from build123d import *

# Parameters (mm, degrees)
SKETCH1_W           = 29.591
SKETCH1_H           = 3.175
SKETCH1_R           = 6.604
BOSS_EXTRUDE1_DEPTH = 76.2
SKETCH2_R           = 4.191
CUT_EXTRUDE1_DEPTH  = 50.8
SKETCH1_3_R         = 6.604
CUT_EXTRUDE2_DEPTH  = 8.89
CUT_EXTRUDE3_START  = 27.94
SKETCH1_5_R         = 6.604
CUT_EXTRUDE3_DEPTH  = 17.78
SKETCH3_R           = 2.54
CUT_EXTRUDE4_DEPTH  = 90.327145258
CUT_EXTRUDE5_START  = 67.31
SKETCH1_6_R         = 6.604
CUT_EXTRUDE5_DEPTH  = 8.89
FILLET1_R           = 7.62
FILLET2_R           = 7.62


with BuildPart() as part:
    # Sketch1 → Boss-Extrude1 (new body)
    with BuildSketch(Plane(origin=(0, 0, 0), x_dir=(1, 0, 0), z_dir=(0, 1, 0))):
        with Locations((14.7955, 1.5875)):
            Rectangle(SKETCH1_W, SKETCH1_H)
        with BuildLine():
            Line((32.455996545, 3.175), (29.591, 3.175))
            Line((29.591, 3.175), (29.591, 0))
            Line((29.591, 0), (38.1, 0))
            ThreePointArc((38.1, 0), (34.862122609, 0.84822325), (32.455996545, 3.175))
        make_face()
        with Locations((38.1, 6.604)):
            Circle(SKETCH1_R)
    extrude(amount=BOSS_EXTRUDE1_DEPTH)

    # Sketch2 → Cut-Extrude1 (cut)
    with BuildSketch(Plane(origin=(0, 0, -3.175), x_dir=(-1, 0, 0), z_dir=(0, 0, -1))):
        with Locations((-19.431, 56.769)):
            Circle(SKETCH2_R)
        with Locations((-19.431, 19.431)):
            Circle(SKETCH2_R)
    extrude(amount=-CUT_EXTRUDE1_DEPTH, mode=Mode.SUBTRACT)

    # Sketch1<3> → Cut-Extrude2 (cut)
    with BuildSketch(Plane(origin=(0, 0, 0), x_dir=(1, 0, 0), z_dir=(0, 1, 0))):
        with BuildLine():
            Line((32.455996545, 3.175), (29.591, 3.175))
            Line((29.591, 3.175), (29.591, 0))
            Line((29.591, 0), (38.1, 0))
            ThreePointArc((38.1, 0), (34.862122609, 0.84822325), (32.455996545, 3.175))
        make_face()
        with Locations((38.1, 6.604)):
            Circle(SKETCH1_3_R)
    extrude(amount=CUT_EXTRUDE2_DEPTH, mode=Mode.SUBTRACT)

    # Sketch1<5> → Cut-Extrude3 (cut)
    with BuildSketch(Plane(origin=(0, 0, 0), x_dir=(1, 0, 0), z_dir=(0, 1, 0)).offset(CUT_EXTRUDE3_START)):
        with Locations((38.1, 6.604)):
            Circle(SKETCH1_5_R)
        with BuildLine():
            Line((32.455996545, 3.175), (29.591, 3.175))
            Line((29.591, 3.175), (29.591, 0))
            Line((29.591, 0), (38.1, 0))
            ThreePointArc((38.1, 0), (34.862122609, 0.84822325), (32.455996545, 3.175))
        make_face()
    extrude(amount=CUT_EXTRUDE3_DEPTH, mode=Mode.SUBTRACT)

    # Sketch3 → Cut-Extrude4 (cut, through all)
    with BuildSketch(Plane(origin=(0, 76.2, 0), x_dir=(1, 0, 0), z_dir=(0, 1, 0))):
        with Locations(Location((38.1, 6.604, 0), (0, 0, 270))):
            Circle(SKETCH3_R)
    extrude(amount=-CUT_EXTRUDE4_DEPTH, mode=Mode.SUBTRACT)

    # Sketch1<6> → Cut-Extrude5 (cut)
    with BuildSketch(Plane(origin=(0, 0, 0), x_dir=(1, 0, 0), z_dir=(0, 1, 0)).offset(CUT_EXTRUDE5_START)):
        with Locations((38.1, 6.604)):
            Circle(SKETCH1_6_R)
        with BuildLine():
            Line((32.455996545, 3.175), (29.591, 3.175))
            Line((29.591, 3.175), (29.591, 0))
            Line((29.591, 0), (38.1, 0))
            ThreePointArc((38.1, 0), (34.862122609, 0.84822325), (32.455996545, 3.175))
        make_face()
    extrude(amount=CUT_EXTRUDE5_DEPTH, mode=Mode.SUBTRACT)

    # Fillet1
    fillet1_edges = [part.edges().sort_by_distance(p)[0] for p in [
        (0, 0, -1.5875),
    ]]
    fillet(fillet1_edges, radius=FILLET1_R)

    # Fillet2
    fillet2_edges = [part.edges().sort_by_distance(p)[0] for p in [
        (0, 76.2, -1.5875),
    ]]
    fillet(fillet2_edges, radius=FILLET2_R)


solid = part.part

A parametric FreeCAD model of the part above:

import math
import FreeCAD as App
import Part
import Sketcher

V = App.Vector
Q = App.Units.Quantity


def edges_at(feature, points):
    """Names of the edges that pass closest to the given points."""
    edges = feature.Shape.Edges
    near = lambda p: min(range(len(edges)), key=lambda i: edges[i].distToShape(Part.Vertex(*p))[0])
    return sorted({f"Edge{near(p) + 1}" for p in points})

doc = App.newDocument("Part")
params = doc.addObject("Spreadsheet::Sheet", "Params")
for row, (alias, value) in enumerate([
    ("sketch1_radius", "0.26 in"),
    ("sketch1_width", "1.5 in"),
    ("sketch1_height", "0.125 in"),
    ("pad1_length", "3 in"),
    ("sketch2_diameter", "0.33 in"),
    ("pocket1_length", "2 in"),
    ("sketch3_radius", "0.26 in"),
    ("sketch3_width", "0.335 in"),
    ("sketch3_height", "0.125 in"),
    ("pocket2_length", "0.35 in"),
    ("sketch4_radius", "0.26 in"),
    ("sketch4_width", "0.335 in"),
    ("sketch4_height", "0.125 in"),
    ("pocket3_length", "0.7 in"),
    ("sketch5_diameter", "0.2 in"),
    ("sketch6_radius", "0.26 in"),
    ("sketch6_width", "0.335 in"),
    ("sketch6_height", "0.125 in"),
    ("pocket5_length", "0.35 in"),
    ("fillet_radius", "0.3 in"),
    ("fillet2_radius", "0.3 in"),
], start=1):
    params.set(f"A{row}", alias)
    params.set(f"B{row}", "=" + value)
    params.setAlias(f"B{row}", alias)

body = doc.addObject("PartDesign::Body", "Body")

# Sketch on XZ plane
sketch1 = body.newObject("Sketcher::SketchObject", "Sketch")
sketch1.AttachmentSupport = (doc.getObject("XZ_Plane"), [""])
sketch1.MapMode = "FlatFace"
sketch1.addGeometry([
    Part.LineSegment(V(0, -3.2, 0), V(0, 0, 0)),
    Part.LineSegment(V(0, 0, 0), V(38.1, 0, 0)),
    Part.ArcOfCircle(Part.Circle(V(38.1, -6.6, 0), V(0, 0, 1), 6.6), math.radians(149), math.radians(450)),
    Part.LineSegment(V(32.5, -3.2, 0), V(0, -3.2, 0)),
], False)
sketch1.addConstraint([
    Sketcher.Constraint("Coincident", 0, 2, 1, 1),
    Sketcher.Constraint("Tangent", 1, 2, 2, 2),
    Sketcher.Constraint("Coincident", 2, 1, 3, 1),
    Sketcher.Constraint("Coincident", 3, 2, 0, 1),
    Sketcher.Constraint("Vertical", 0),
    Sketcher.Constraint("Horizontal", 1),
    Sketcher.Constraint("Horizontal", 3),
    Sketcher.Constraint("Coincident", 0, 2, -1, 1),
    Sketcher.Constraint("Radius", 2, Q("0.26 in")),
    Sketcher.Constraint("DistanceX", 1, 1, 1, 2, Q("1.5 in")),
    Sketcher.Constraint("DistanceY", 0, 1, 0, 2, Q("0.125 in")),
])
sketch1.setExpression("Constraints[8]", "Params.sketch1_radius")
sketch1.setExpression("Constraints[9]", "Params.sketch1_width")
sketch1.setExpression("Constraints[10]", "Params.sketch1_height")
pad1 = body.newObject("PartDesign::Pad", "Pad")
pad1.Profile = sketch1
pad1.setExpression("Length", "Params.pad1_length")
pad1.Reversed = True

# Sketch on XY plane
sketch2 = body.newObject("Sketcher::SketchObject", "Sketch001")
sketch2.AttachmentSupport = (doc.getObject("XY_Plane"), [""])
sketch2.MapMode = "FlatFace"
sketch2.AttachmentOffset = App.Placement(V(0, 0, -0.125 * 25.4), App.Rotation())
sketch2.addGeometry([
    Part.Circle(V(19.4, 56.8, 0), V(0, 0, 1), 4.2),
    Part.Circle(V(19.4, 19.4, 0), V(0, 0, 1), 4.2),
], False)
sketch2.addConstraint([
    Sketcher.Constraint("Equal", 0, 1),
    Sketcher.Constraint("Vertical", 0, 3, 1, 3),
    Sketcher.Constraint("Diameter", 0, Q("0.33 in")),
    Sketcher.Constraint("DistanceY", 1, 3, 0, 3, Q("1.47 in")),
    Sketcher.Constraint("DistanceX", -1, 1, 0, 3, Q("0.765 in")),
    Sketcher.Constraint("DistanceY", -1, 1, 0, 3, Q("2.235 in")),
])
sketch2.setExpression("Constraints[2]", "Params.sketch2_diameter")
pocket1 = body.newObject("PartDesign::Pocket", "Pocket")
pocket1.Profile = sketch2
pocket1.setExpression("Length", "Params.pocket1_length")
pocket1.Reversed = True

# Sketch on XZ plane
sketch3 = body.newObject("Sketcher::SketchObject", "Sketch002")
sketch3.AttachmentSupport = (doc.getObject("XZ_Plane"), [""])
sketch3.MapMode = "FlatFace"
sketch3.addGeometry([
    Part.LineSegment(V(32.5, -3.2, 0), V(29.6, -3.2, 0)),
    Part.LineSegment(V(29.6, -3.2, 0), V(29.6, 0, 0)),
    Part.LineSegment(V(29.6, 0, 0), V(38.1, 0, 0)),
    Part.ArcOfCircle(Part.Circle(V(38.1, -6.6, 0), V(0, 0, 1), 6.6), math.radians(149), math.radians(450)),
], False)
sketch3.addConstraint([
    Sketcher.Constraint("Coincident", 0, 2, 1, 1),
    Sketcher.Constraint("Coincident", 1, 2, 2, 1),
    Sketcher.Constraint("Tangent", 2, 2, 3, 2),
    Sketcher.Constraint("Coincident", 3, 1, 0, 1),
    Sketcher.Constraint("Horizontal", 0),
    Sketcher.Constraint("Vertical", 1),
    Sketcher.Constraint("Horizontal", 2),
    Sketcher.Constraint("PointOnObject", 1, 2, -1),
    Sketcher.Constraint("Radius", 3, Q("0.26 in")),
    Sketcher.Constraint("DistanceX", -1, 1, 3, 3, Q("1.5 in")),
    Sketcher.Constraint("DistanceX", 2, 1, 2, 2, Q("0.335 in")),
    Sketcher.Constraint("DistanceY", 1, 1, 1, 2, Q("0.125 in")),
])
sketch3.setExpression("Constraints[8]", "Params.sketch3_radius")
sketch3.setExpression("Constraints[10]", "Params.sketch3_width")
sketch3.setExpression("Constraints[11]", "Params.sketch3_height")
pocket2 = body.newObject("PartDesign::Pocket", "Pocket001")
pocket2.Profile = sketch3
pocket2.setExpression("Length", "Params.pocket2_length")

# Sketch on XZ plane
sketch4 = body.newObject("Sketcher::SketchObject", "Sketch003")
sketch4.AttachmentSupport = (doc.getObject("XZ_Plane"), [""])
sketch4.MapMode = "FlatFace"
sketch4.AttachmentOffset = App.Placement(V(0, 0, -1.1 * 25.4), App.Rotation())
sketch4.addGeometry([
    Part.LineSegment(V(32.5, -3.2, 0), V(29.6, -3.2, 0)),
    Part.LineSegment(V(29.6, -3.2, 0), V(29.6, 0, 0)),
    Part.LineSegment(V(29.6, 0, 0), V(38.1, 0, 0)),
    Part.ArcOfCircle(Part.Circle(V(38.1, -6.6, 0), V(0, 0, 1), 6.6), math.radians(149), math.radians(450)),
], False)
sketch4.addConstraint([
    Sketcher.Constraint("Coincident", 0, 2, 1, 1),
    Sketcher.Constraint("Coincident", 1, 2, 2, 1),
    Sketcher.Constraint("Tangent", 2, 2, 3, 2),
    Sketcher.Constraint("Coincident", 3, 1, 0, 1),
    Sketcher.Constraint("Horizontal", 0),
    Sketcher.Constraint("Vertical", 1),
    Sketcher.Constraint("Horizontal", 2),
    Sketcher.Constraint("PointOnObject", 1, 2, -1),
    Sketcher.Constraint("Radius", 3, Q("0.26 in")),
    Sketcher.Constraint("DistanceX", -1, 1, 3, 3, Q("1.5 in")),
    Sketcher.Constraint("DistanceX", 2, 1, 2, 2, Q("0.335 in")),
    Sketcher.Constraint("DistanceY", 1, 1, 1, 2, Q("0.125 in")),
])
sketch4.setExpression("Constraints[8]", "Params.sketch4_radius")
sketch4.setExpression("Constraints[10]", "Params.sketch4_width")
sketch4.setExpression("Constraints[11]", "Params.sketch4_height")
pocket3 = body.newObject("PartDesign::Pocket", "Pocket002")
pocket3.Profile = sketch4
pocket3.setExpression("Length", "Params.pocket3_length")

# Sketch on XZ plane
sketch5 = body.newObject("Sketcher::SketchObject", "Sketch004")
sketch5.AttachmentSupport = (doc.getObject("XZ_Plane"), [""])
sketch5.MapMode = "FlatFace"
sketch5.AttachmentOffset = App.Placement(V(0, 0, -3 * 25.4), App.Rotation())
sketch5.addGeometry(Part.Circle(V(38.1, -6.6, 0), V(0, 0, 1), 2.5), False)
sketch5.addConstraint([
    Sketcher.Constraint("Diameter", 0, Q("0.2 in")),
    Sketcher.Constraint("DistanceX", -1, 1, 0, 3, Q("1.5 in")),
    Sketcher.Constraint("DistanceY", 0, 3, -1, 1, Q("0.26 in")),
])
sketch5.setExpression("Constraints[0]", "Params.sketch5_diameter")
pocket4 = body.newObject("PartDesign::Pocket", "Pocket003")
pocket4.Profile = sketch5
pocket4.Type = "ThroughAll"
pocket4.Reversed = True

# Sketch on XZ plane
sketch6 = body.newObject("Sketcher::SketchObject", "Sketch005")
sketch6.AttachmentSupport = (doc.getObject("XZ_Plane"), [""])
sketch6.MapMode = "FlatFace"
sketch6.AttachmentOffset = App.Placement(V(0, 0, -2.65 * 25.4), App.Rotation())
sketch6.addGeometry([
    Part.LineSegment(V(32.5, -3.2, 0), V(29.6, -3.2, 0)),
    Part.LineSegment(V(29.6, -3.2, 0), V(29.6, 0, 0)),
    Part.LineSegment(V(29.6, 0, 0), V(38.1, 0, 0)),
    Part.ArcOfCircle(Part.Circle(V(38.1, -6.6, 0), V(0, 0, 1), 6.6), math.radians(149), math.radians(450)),
], False)
sketch6.addConstraint([
    Sketcher.Constraint("Coincident", 0, 2, 1, 1),
    Sketcher.Constraint("Coincident", 1, 2, 2, 1),
    Sketcher.Constraint("Tangent", 2, 2, 3, 2),
    Sketcher.Constraint("Coincident", 3, 1, 0, 1),
    Sketcher.Constraint("Horizontal", 0),
    Sketcher.Constraint("Vertical", 1),
    Sketcher.Constraint("Horizontal", 2),
    Sketcher.Constraint("PointOnObject", 1, 2, -1),
    Sketcher.Constraint("Radius", 3, Q("0.26 in")),
    Sketcher.Constraint("DistanceX", -1, 1, 3, 3, Q("1.5 in")),
    Sketcher.Constraint("DistanceX", 2, 1, 2, 2, Q("0.335 in")),
    Sketcher.Constraint("DistanceY", 1, 1, 1, 2, Q("0.125 in")),
])
sketch6.setExpression("Constraints[8]", "Params.sketch6_radius")
sketch6.setExpression("Constraints[10]", "Params.sketch6_width")
sketch6.setExpression("Constraints[11]", "Params.sketch6_height")
pocket5 = body.newObject("PartDesign::Pocket", "Pocket004")
pocket5.Profile = sketch6
pocket5.setExpression("Length", "Params.pocket5_length")
doc.recompute()

fillet = body.newObject("PartDesign::Fillet", "Fillet")
fillet.Base = (pocket5, edges_at(pocket5, [(0, 0, -1.587)]))
fillet.setExpression("Radius", "Params.fillet_radius")
doc.recompute()

fillet2 = body.newObject("PartDesign::Fillet", "Fillet001")
fillet2.Base = (fillet, edges_at(fillet, [(0, 76.2, -1.587)]))
fillet2.setExpression("Radius", "Params.fillet2_radius")

doc.recompute()
